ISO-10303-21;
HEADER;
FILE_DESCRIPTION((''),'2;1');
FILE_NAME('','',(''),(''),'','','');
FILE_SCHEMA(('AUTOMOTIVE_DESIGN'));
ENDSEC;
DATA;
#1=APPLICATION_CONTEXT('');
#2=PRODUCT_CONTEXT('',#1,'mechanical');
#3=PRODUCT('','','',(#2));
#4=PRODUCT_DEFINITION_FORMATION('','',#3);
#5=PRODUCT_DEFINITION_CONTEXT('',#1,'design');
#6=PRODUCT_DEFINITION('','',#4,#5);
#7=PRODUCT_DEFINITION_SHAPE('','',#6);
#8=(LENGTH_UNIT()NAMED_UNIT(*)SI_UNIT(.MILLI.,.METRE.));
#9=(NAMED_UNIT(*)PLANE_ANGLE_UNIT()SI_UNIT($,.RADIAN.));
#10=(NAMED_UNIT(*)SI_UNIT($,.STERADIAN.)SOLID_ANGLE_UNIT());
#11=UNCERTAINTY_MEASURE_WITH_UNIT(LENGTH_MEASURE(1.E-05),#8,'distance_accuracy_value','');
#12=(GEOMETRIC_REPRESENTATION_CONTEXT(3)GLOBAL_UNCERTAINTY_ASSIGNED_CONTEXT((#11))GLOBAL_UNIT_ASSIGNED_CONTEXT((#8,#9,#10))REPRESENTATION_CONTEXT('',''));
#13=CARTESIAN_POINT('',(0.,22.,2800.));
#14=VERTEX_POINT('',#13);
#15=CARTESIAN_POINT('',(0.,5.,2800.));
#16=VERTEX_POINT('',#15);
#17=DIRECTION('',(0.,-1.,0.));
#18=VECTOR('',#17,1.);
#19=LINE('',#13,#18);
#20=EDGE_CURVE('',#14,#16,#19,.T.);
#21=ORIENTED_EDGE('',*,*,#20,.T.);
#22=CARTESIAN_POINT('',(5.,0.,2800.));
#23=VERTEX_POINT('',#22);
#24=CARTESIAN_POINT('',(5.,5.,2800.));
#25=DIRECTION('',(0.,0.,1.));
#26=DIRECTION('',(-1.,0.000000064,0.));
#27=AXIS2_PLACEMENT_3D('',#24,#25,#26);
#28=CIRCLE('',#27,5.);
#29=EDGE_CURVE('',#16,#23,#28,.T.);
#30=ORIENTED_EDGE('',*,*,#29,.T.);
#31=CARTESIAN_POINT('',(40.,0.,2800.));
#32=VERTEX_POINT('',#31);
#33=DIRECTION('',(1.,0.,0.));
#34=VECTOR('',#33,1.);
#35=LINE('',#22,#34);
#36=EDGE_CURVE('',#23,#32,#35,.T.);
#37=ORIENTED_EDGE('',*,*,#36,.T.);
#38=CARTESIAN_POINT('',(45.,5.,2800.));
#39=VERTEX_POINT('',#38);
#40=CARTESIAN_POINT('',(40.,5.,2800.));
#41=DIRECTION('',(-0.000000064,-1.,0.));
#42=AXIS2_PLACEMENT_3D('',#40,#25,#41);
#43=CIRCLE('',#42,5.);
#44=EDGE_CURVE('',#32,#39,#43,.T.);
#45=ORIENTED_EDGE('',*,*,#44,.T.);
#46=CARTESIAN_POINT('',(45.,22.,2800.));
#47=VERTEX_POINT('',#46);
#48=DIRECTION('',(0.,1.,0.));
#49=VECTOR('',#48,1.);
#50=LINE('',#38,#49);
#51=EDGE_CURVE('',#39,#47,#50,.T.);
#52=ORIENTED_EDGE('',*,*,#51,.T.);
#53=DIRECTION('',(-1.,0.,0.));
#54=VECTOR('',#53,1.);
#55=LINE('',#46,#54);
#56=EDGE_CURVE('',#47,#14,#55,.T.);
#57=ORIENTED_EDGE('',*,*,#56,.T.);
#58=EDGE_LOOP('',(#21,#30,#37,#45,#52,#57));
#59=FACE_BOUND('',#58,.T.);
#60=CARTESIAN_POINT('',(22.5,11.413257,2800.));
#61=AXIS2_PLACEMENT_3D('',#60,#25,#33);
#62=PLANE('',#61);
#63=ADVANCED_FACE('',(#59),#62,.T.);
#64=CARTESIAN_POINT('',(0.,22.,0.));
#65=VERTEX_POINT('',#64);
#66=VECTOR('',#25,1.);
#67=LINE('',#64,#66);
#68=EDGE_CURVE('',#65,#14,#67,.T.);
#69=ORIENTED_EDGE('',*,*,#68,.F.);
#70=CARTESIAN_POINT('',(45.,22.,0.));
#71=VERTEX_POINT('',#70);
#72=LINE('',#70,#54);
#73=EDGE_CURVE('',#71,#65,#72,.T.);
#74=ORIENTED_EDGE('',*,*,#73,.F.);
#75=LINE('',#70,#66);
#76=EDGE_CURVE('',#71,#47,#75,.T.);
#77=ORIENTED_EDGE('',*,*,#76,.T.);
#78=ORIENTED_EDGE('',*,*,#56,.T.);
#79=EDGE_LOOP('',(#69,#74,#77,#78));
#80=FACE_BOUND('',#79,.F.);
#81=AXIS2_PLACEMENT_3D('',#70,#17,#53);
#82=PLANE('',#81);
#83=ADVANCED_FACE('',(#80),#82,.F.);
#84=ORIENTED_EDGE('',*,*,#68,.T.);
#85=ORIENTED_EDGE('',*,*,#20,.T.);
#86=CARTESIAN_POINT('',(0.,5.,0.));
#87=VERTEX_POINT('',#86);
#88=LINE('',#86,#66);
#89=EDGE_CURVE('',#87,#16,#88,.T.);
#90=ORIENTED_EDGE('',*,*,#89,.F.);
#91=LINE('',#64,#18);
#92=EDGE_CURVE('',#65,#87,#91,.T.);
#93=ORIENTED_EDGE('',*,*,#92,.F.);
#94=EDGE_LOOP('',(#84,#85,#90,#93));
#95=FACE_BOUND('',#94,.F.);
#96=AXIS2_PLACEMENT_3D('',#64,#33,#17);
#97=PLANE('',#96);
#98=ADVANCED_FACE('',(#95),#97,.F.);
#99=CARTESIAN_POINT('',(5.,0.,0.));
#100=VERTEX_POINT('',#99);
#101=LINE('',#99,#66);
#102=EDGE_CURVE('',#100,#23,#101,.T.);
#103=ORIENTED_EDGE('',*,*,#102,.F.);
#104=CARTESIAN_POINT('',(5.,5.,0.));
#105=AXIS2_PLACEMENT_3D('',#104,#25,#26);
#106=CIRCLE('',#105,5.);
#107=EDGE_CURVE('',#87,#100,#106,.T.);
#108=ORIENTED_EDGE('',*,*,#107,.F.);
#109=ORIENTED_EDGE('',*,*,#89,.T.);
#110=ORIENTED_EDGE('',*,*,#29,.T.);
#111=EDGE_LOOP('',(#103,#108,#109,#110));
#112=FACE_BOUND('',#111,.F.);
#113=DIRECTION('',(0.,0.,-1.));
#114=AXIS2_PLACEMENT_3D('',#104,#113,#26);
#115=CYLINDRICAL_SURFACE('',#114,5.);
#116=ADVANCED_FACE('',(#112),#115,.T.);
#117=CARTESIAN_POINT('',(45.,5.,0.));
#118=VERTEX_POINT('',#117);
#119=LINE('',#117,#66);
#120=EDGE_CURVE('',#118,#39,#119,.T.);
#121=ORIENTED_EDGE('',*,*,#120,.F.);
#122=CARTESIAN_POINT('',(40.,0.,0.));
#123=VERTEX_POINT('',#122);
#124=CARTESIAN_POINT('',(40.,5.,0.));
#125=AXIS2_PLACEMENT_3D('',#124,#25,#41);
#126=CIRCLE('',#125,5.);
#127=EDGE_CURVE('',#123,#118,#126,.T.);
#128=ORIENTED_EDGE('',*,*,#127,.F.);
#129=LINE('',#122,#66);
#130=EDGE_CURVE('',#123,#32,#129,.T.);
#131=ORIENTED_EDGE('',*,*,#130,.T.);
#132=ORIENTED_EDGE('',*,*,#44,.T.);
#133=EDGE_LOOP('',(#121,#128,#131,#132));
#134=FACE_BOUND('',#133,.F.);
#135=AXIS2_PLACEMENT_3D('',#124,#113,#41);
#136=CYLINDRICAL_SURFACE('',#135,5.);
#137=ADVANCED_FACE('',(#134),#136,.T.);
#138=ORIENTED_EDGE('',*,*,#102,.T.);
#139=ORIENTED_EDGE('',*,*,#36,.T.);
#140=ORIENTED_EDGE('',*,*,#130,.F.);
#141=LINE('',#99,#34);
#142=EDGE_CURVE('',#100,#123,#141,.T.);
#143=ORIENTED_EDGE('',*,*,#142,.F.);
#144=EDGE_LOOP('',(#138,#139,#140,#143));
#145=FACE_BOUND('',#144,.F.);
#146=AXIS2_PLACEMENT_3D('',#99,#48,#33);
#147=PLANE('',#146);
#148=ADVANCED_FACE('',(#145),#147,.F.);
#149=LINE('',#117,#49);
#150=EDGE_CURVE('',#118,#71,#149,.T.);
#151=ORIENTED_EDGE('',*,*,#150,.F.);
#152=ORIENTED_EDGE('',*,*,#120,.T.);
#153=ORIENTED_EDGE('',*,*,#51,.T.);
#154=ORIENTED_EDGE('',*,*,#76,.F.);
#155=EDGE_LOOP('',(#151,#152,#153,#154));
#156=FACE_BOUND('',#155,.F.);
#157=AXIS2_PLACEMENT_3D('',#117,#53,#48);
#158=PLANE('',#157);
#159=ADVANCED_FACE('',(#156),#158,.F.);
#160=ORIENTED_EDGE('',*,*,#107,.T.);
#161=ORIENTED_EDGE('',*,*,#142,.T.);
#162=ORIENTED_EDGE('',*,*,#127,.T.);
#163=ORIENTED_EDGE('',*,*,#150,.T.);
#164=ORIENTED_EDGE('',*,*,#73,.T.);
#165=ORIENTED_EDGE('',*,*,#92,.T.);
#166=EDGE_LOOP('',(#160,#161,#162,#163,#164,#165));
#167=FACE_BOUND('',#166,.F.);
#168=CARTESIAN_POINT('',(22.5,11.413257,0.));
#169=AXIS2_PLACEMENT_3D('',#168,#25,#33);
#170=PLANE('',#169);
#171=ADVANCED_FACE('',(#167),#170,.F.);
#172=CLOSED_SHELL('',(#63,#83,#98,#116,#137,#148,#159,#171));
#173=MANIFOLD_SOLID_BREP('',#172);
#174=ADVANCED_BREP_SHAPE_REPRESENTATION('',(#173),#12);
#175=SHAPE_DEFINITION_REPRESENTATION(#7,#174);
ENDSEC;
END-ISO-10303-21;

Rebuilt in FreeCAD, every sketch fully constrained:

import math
import FreeCAD as App
import Part
import Sketcher

V = App.Vector
Q = App.Units.Quantity

doc = App.newDocument("Part")
body = doc.addObject("PartDesign::Body", "Body")

# Sketch on XY plane
sketch1 = body.newObject("Sketcher::SketchObject", "Sketch")
sketch1.AttachmentSupport = (doc.getObject("XY_Plane"), [""])
sketch1.MapMode = "FlatFace"
sketch1.addGeometry([
    Part.ArcOfCircle(Part.Circle(V(5, 5, 0), V(0, 0, 1), 5), math.radians(180), math.radians(270)),  # 0
    Part.LineSegment(V(5, 0, 0), V(40, 0, 0)),  # 1
    Part.ArcOfCircle(Part.Circle(V(40, 5, 0), V(0, 0, 1), 5), math.radians(-90), math.radians(0)),  # 2
    Part.LineSegment(V(45, 5, 0), V(45, 22, 0)),  # 3
    Part.LineSegment(V(45, 22, 0), V(0, 22, 0)),  # 4
    Part.LineSegment(V(0, 22, 0), V(0, 5, 0)),  # 5
], False)
sketch1.addConstraint([
    Sketcher.Constraint("Tangent", 0, 2, 1, 1),
    Sketcher.Constraint("Tangent", 1, 2, 2, 1),
    Sketcher.Constraint("Tangent", 2, 2, 3, 1),
    Sketcher.Constraint("Coincident", 3, 2, 4, 1),
    Sketcher.Constraint("Coincident", 4, 2, 5, 1),
    Sketcher.Constraint("Tangent", 5, 2, 0, 1),
    Sketcher.Constraint("Horizontal", 1),
    Sketcher.Constraint("Vertical", 3),
    Sketcher.Constraint("Horizontal", 4),
    Sketcher.Constraint("Vertical", 5),
    Sketcher.Constraint("Equal", 0, 2),
    Sketcher.Constraint("PointOnObject", 0, 2, -1),
    Sketcher.Constraint("PointOnObject", 4, 2, -2),
    Sketcher.Constraint("Radius", 0, Q("5 mm")),
    Sketcher.Constraint("DistanceX", 1, 1, 1, 2, Q("35 mm")),
    Sketcher.Constraint("DistanceY", 3, 1, 3, 2, Q("17 mm")),
])
pad1 = body.newObject("PartDesign::Pad", "Pad")
pad1.Profile = sketch1
pad1.Length = 2800

doc.recompute()
